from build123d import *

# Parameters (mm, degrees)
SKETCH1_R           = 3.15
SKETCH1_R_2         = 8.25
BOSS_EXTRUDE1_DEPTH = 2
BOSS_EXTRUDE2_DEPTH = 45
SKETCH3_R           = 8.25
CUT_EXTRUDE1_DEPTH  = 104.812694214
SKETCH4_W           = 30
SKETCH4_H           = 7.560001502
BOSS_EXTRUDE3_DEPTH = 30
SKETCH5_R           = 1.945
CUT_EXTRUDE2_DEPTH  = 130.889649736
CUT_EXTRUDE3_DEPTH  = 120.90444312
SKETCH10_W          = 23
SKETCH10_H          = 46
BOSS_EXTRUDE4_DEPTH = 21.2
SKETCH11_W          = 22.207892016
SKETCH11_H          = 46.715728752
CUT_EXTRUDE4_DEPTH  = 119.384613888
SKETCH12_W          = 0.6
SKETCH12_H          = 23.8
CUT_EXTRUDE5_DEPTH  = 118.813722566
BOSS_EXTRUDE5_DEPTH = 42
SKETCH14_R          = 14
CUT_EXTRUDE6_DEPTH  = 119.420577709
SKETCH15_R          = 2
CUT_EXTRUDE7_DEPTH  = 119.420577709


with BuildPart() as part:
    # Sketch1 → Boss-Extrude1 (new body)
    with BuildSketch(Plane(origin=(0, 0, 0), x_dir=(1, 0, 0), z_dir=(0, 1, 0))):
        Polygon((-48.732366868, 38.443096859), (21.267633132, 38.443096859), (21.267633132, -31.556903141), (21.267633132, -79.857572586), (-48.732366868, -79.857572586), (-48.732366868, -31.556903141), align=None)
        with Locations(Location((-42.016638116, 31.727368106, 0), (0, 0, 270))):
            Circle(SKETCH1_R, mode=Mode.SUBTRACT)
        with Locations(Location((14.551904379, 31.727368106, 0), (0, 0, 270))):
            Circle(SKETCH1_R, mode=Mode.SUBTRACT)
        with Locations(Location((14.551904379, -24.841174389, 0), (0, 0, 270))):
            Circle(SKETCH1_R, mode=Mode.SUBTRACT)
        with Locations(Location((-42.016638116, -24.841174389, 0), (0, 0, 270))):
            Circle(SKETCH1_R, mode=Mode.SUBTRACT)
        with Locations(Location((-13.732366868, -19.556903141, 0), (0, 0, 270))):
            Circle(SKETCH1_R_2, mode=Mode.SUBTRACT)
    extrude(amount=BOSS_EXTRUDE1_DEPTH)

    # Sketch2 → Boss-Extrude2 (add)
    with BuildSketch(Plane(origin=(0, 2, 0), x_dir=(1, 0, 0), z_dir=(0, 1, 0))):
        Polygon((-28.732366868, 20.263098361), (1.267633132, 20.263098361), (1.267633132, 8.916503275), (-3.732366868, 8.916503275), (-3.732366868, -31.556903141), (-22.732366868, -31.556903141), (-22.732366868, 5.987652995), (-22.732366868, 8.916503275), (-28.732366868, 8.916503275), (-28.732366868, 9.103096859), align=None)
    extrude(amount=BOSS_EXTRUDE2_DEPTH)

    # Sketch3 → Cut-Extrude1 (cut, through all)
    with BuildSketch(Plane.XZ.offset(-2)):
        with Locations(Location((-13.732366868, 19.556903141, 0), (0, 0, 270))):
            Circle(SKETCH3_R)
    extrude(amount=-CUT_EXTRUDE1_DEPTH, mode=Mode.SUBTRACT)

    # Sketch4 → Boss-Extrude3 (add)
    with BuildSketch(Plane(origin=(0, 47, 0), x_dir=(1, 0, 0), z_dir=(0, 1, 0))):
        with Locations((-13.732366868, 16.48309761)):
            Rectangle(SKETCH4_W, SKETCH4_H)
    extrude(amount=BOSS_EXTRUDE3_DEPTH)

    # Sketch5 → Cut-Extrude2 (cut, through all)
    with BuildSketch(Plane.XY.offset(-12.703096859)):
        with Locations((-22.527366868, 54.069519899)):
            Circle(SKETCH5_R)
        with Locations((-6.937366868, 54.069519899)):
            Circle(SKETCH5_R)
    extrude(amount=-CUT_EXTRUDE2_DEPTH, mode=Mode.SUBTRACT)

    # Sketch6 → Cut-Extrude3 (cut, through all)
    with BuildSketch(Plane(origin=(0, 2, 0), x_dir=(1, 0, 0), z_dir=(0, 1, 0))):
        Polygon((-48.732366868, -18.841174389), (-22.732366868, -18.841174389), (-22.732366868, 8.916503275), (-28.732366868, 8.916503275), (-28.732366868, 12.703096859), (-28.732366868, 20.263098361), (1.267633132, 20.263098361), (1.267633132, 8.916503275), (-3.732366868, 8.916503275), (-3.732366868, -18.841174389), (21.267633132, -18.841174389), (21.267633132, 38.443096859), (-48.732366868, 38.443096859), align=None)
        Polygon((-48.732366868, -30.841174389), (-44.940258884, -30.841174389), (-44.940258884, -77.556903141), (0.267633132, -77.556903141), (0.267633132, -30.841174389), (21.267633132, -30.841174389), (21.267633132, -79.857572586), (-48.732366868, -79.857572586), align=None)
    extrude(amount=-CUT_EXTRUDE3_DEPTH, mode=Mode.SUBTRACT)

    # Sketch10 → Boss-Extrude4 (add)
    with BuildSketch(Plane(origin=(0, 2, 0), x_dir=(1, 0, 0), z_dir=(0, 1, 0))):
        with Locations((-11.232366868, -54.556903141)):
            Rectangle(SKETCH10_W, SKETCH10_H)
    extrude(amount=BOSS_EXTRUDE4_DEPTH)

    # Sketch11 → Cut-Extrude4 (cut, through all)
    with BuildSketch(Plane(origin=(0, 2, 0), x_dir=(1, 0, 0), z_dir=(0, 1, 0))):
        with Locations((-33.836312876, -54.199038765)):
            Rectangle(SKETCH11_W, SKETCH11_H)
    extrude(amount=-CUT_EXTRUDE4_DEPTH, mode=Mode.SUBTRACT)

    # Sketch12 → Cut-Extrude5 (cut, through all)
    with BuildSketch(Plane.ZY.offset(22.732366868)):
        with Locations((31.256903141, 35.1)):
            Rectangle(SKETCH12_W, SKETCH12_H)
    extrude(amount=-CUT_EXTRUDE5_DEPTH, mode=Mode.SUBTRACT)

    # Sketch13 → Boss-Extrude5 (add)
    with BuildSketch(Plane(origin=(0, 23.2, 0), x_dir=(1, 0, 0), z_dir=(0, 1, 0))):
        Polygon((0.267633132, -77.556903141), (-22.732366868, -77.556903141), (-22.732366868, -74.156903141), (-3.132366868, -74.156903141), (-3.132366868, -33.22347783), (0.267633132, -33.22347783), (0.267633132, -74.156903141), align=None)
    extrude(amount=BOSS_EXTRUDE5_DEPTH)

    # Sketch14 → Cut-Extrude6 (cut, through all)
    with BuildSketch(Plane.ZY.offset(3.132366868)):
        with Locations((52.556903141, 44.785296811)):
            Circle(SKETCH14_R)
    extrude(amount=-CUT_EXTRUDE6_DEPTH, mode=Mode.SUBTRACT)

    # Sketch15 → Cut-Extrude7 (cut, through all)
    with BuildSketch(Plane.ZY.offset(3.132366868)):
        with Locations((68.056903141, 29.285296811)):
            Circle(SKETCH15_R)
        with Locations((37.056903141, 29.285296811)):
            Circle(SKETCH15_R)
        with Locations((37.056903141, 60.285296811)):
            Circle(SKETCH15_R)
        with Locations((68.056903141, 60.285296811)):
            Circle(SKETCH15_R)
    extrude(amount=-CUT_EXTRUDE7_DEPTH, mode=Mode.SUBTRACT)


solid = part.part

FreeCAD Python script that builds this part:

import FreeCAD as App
import Part
import Sketcher
from FreeCAD import Vector


def add_polygon(sketch, points):
    """Adds a closed chain of lines whose ends are joined by coincident constraints."""
    first, n = sketch.GeometryCount, len(points)
    for a, b in zip(points, points[1:] + points[:1]):
        sketch.addGeometry(Part.LineSegment(App.Vector(*a, 0), App.Vector(*b, 0)), False)
    for i in range(n):
        sketch.addConstraint(Sketcher.Constraint("Coincident", first + i, 2, first + (i + 1) % n, 1))

doc = App.newDocument("Part")
body = doc.addObject("PartDesign::Body", "Body")

# Sketch on XZ plane
sketch1 = body.newObject("Sketcher::SketchObject", "Sketch")
sketch1.AttachmentSupport = (doc.getObject("XZ_Plane"), [""])
sketch1.MapMode = "FlatFace"
add_polygon(sketch1, [(21.3, -38.4), (-48.7, -38.4), (-48.7, 79.9), (21.3, 79.9)])  # lines 0-3
sketch1.addGeometry(Part.Circle(Vector(14.6, 24.8, 0), Vector(0, 0, 1), 3.1), False)  # 4
sketch1.addGeometry(Part.Circle(Vector(-13.7, 19.6, 0), Vector(0, 0, 1), 8.2), False)  # 5
sketch1.addGeometry(Part.Circle(Vector(-42, 24.8, 0), Vector(0, 0, 1), 3.1), False)  # 6
sketch1.addGeometry(Part.Circle(Vector(14.6, -31.7, 0), Vector(0, 0, 1), 3.1), False)  # 7
sketch1.addGeometry(Part.Circle(Vector(-42, -31.7, 0), Vector(0, 0, 1), 3.1), False)  # 8
sketch1.addConstraint([
    Sketcher.Constraint("Horizontal", 0),
    Sketcher.Constraint("Vertical", 1),
    Sketcher.Constraint("Horizontal", 2),
    Sketcher.Constraint("Vertical", 3),
    Sketcher.Constraint("Equal", 4, 6),
    Sketcher.Constraint("Equal", 6, 7),
    Sketcher.Constraint("Equal", 7, 8),
    Sketcher.Constraint("Horizontal", 4, 3, 6, 3),
    Sketcher.Constraint("Horizontal", 7, 3, 8, 3),
    Sketcher.Constraint("Vertical", 4, 3, 7, 3),
    Sketcher.Constraint("Vertical", 6, 3, 8, 3),
    Sketcher.Constraint("Diameter", 4, 6.3),
    Sketcher.Constraint("Diameter", 5, 16.5),
    Sketcher.Constraint("DistanceX", 0, 2, 0, 1, 70.0),
    Sketcher.Constraint("DistanceX", 0, 2, 5, 3, 35.0),
    Sketcher.Constraint("DistanceY", 0, 2, 5, 3, 58.0),
    Sketcher.Constraint("DistanceY", 1, 1, 1, 2, 118.300669),
    Sketcher.Constraint("DistanceY", 6, 3, 1, 2, 55.016398),
    Sketcher.Constraint("DistanceX", 6, 3, -1, 1, 42.016638),
    Sketcher.Constraint("DistanceY", 7, 3, -1, 1, 31.727368),
    Sketcher.Constraint("DistanceX", 5, 3, 4, 3, 28.284271),
    Sketcher.Constraint("DistanceX", 6, 3, 5, 3, 28.284271),
    Sketcher.Constraint("DistanceY", 7, 3, 5, 3, 51.284271),
])
pad1 = body.newObject("PartDesign::Pad", "Pad")
pad1.Profile = sketch1
pad1.Length = 2
pad1.Reversed = True

# Sketch on XZ plane
sketch2 = body.newObject("Sketcher::SketchObject", "Sketch001")
sketch2.AttachmentSupport = (doc.getObject("XZ_Plane"), [""])
sketch2.MapMode = "FlatFace"
sketch2.AttachmentOffset = App.Placement(Vector(0, 0, -2), App.Rotation())
add_polygon(sketch2, [(1, -20), (-29, -20), (-29, -9), (-23, -9), (-23, 32), (-4, 32), (-4, -9), (1, -9)])  # lines 0-7
sketch2.addConstraint([
    Sketcher.Constraint("Horizontal", 0),
    Sketcher.Constraint("Vertical", 1),
    Sketcher.Constraint("Horizontal", 2),
    Sketcher.Constraint("Vertical", 3),
    Sketcher.Constraint("Horizontal", 4),
    Sketcher.Constraint("Vertical", 5),
    Sketcher.Constraint("Horizontal", 6),
    Sketcher.Constraint("Vertical", 7),
    Sketcher.Constraint("Horizontal", 2, 2, 5, 2),
    Sketcher.Constraint("DistanceX", 0, 2, 0, 1, 30.0),
    Sketcher.Constraint("DistanceX", 2, 1, 2, 2, 6.0),
    Sketcher.Constraint("DistanceX", 4, 1, 4, 2, 19.0),
    Sketcher.Constraint("DistanceY", 0, 2, 3, 2, 51.820002),
    Sketcher.Constraint("DistanceY", 0, 2, -1, 1, 20.263098),
    Sketcher.Constraint("DistanceY", 1, 1, 1, 2, 11.346595),
    Sketcher.Constraint("DistanceX", 0, 2, -1, 1, 28.732367),
])
pad2 = body.newObject("PartDesign::Pad", "Pad001")
pad2.Profile = sketch2
pad2.Length = 45
pad2.Reversed = True

# Sketch on XZ plane
sketch3 = body.newObject("Sketcher::SketchObject", "Sketch002")
sketch3.AttachmentSupport = (doc.getObject("XZ_Plane"), [""])
sketch3.MapMode = "FlatFace"
sketch3.AttachmentOffset = App.Placement(Vector(0, 0, -2), App.Rotation())
sketch3.addGeometry(Part.Circle(Vector(-14, 20, 0), Vector(0, 0, 1), 8), False)
sketch3.addConstraint([
    Sketcher.Constraint("Diameter", 0, 16.5),
    Sketcher.Constraint("DistanceX", 0, 3, -1, 1, 13.732367),
    Sketcher.Constraint("DistanceY", -1, 1, 0, 3, 19.556903),
])
pocket1 = body.newObject("PartDesign::Pocket", "Pocket")
pocket1.Profile = sketch3
pocket1.Type = "ThroughAll"

# Sketch on XZ plane
sketch4 = body.newObject("Sketcher::SketchObject", "Sketch003")
sketch4.AttachmentSupport = (doc.getObject("XZ_Plane"), [""])
sketch4.MapMode = "FlatFace"
sketch4.AttachmentOffset = App.Placement(Vector(0, 0, -47), App.Rotation())
add_polygon(sketch4, [(-29, -20), (-29, -13), (1, -13), (1, -20)])  # lines 0-3
sketch4.addConstraint([
    Sketcher.Constraint("Vertical", 0),
    Sketcher.Constraint("Horizontal", 1),
    Sketcher.Constraint("Vertical", 2),
    Sketcher.Constraint("Horizontal", 3),
    Sketcher.Constraint("DistanceX", 1, 1, 1, 2, 30.0),
    Sketcher.Constraint("DistanceY", 0, 1, 0, 2, 7.560002),
    Sketcher.Constraint("DistanceY", 2, 2, -1, 1, 20.263098),
    Sketcher.Constraint("DistanceX", 0, 2, -1, 1, 28.732367),
])
pad3 = body.newObject("PartDesign::Pad", "Pad002")
pad3.Profile = sketch4
pad3.Length = 30
pad3.Reversed = True

# Sketch on XY plane
sketch5 = body.newObject("Sketcher::SketchObject", "Sketch004")
sketch5.AttachmentSupport = (doc.getObject("XY_Plane"), [""])
sketch5.MapMode = "FlatFace"
sketch5.AttachmentOffset = App.Placement(Vector(0, 0, -12.703097), App.Rotation())
sketch5.addGeometry([
    Part.Circle(Vector(-22.5, 54.1, 0), Vector(0, 0, 1), 1.9),
    Part.Circle(Vector(-6.9, 54.1, 0), Vector(0, 0, 1), 1.9),
], False)
sketch5.addConstraint([
    Sketcher.Constraint("Equal", 0, 1),
    Sketcher.Constraint("Horizontal", 0, 3, 1, 3),
    Sketcher.Constraint("Diameter", 0, 3.89),
    Sketcher.Constraint("DistanceX", 0, 3, 1, 3, 15.59),
    Sketcher.Constraint("DistanceY", -1, 1, 0, 3, 54.06952),
    Sketcher.Constraint("DistanceX", 0, 3, -1, 1, 22.527367),
])
pocket2 = body.newObject("PartDesign::Pocket", "Pocket001")
pocket2.Profile = sketch5
pocket2.Type = "ThroughAll"

# Sketch on XZ plane
sketch6 = body.newObject("Sketcher::SketchObject", "Sketch005")
sketch6.AttachmentSupport = (doc.getObject("XZ_Plane"), [""])
sketch6.MapMode = "FlatFace"
sketch6.AttachmentOffset = App.Placement(Vector(0, 0, -2), App.Rotation())
add_polygon(sketch6, [(-48.7, 18.8), (-22.7, 18.8), (-22.7, -8.9), (-28.7, -8.9), (-28.7, -20.3), (1.3, -20.3), (1.3, -8.9), (-3.7, -8.9), (-3.7, 18.8), (21.3, 18.8), (21.3, -38.4), (-48.7, -38.4)])  # lines 0-11
add_polygon(sketch6, [(-44.9, 30.8), (-48.7, 30.8), (-48.7, 79.9), (21.3, 79.9), (21.3, 30.8), (0.3, 30.8), (0.3, 77.6), (-44.9, 77.6)])  # lines 12-19
sketch6.addConstraint([
    Sketcher.Constraint("Horizontal", 0),
    Sketcher.Constraint("Vertical", 1),
    Sketcher.Constraint("Horizontal", 2),
    Sketcher.Constraint("Vertical", 3),
    Sketcher.Constraint("Horizontal", 4),
    Sketcher.Constraint("Vertical", 5),
    Sketcher.Constraint("Horizontal", 6),
    Sketcher.Constraint("Vertical", 7),
    Sketcher.Constraint("Horizontal", 8),
    Sketcher.Constraint("Vertical", 9),
    Sketcher.Constraint("Horizontal", 10),
    Sketcher.Constraint("Vertical", 11),
    Sketcher.Constraint("Horizontal", 12),
    Sketcher.Constraint("Vertical", 13),
    Sketcher.Constraint("Horizontal", 14),
    Sketcher.Constraint("Vertical", 15),
    Sketcher.Constraint("Horizontal", 16),
    Sketcher.Constraint("Vertical", 17),
    Sketcher.Constraint("Horizontal", 18),
    Sketcher.Constraint("Vertical", 19),
    Sketcher.Constraint("Horizontal", 2, 2, 5, 2),
    Sketcher.Constraint("Horizontal", 0, 2, 7, 2),
    Sketcher.Constraint("Horizontal", 12, 2, 15, 2),
    Sketcher.Constraint("Vertical", 11, 2, 12, 2),
    Sketcher.Constraint("Vertical", 9, 2, 14, 2),
    Sketcher.Constraint("DistanceX", 0, 1, 0, 2, 26.0),
    Sketcher.Constraint("DistanceX", 2, 2, 2, 1, 6.0),
    Sketcher.Constraint("DistanceX", 4, 1, 4, 2, 30.0),
    Sketcher.Constraint("DistanceX", 6, 2, 6, 1, 5.0),
    Sketcher.Constraint("DistanceX", 8, 1, 8, 2, 25.0),
    Sketcher.Constraint("DistanceX", 16, 2, 16, 1, 21.0),
    Sketcher.Constraint("DistanceY", 11, 2, 12, 2, 12.0),
    Sketcher.Constraint("DistanceY", 9, 2, 4, 2, 18.179998),
    Sketcher.Constraint("DistanceY", 13, 1, 13, 2, 49.016398),
    Sketcher.Constraint("DistanceY", 9, 2, 9, 1, 57.284271),
    Sketcher.Constraint("DistanceY", 17, 1, 17, 2, 46.715729),
    Sketcher.Constraint("DistanceY", 3, 2, -1, 1, 20.263098),
    Sketcher.Constraint("DistanceX", 12, 2, 12, 1, 3.792108),
    Sketcher.Constraint("DistanceY", 1, 2, 1, 1, 27.757678),
    Sketcher.Constraint("DistanceX", 18, 2, -1, 1, 44.940259),
])
pocket3 = body.newObject("PartDesign::Pocket", "Pocket002")
pocket3.Profile = sketch6
pocket3.Type = "ThroughAll"
pocket3.Reversed = True

# Sketch on XZ plane
sketch7 = body.newObject("Sketcher::SketchObject", "Sketch006")
sketch7.AttachmentSupport = (doc.getObject("XZ_Plane"), [""])
sketch7.MapMode = "FlatFace"
sketch7.AttachmentOffset = App.Placement(Vector(0, 0, -2), App.Rotation())
add_polygon(sketch7, [(-23, 32), (-23, 78), (0, 78), (0, 32)])  # lines 0-3
sketch7.addConstraint([
    Sketcher.Constraint("Vertical", 0),
    Sketcher.Constraint("Horizontal", 1),
    Sketcher.Constraint("Vertical", 2),
    Sketcher.Constraint("Horizontal", 3),
    Sketcher.Constraint("DistanceX", 1, 1, 1, 2, 23.0),
    Sketcher.Constraint("DistanceY", 0, 1, 0, 2, 46.0),
    Sketcher.Constraint("DistanceX", 0, 2, -1, 1, 22.732367),
    Sketcher.Constraint("DistanceY", -1, 1, 0, 2, 77.556903),
])
pad4 = body.newObject("PartDesign::Pad", "Pad003")
pad4.Profile = sketch7
pad4.Length = 21.2
pad4.Reversed = True

# Sketch on XZ plane
sketch8 = body.newObject("Sketcher::SketchObject", "Sketch007")
sketch8.AttachmentSupport = (doc.getObject("XZ_Plane"), [""])
sketch8.MapMode = "FlatFace"
sketch8.AttachmentOffset = App.Placement(Vector(0, 0, -2), App.Rotation())
add_polygon(sketch8, [(-45, 31), (-45, 78), (-23, 78), (-23, 31)])  # lines 0-3
sketch8.addConstraint([
    Sketcher.Constraint("Vertical", 0),
    Sketcher.Constraint("Horizontal", 1),
    Sketcher.Constraint("Vertical", 2),
    Sketcher.Constraint("Horizontal", 3),
    Sketcher.Constraint("DistanceY", 0, 1, 0, 2, 46.715729),
    Sketcher.Constraint("DistanceX", 1, 1, 1, 2, 22.207892),
    Sketcher.Constraint("DistanceX", 0, 2, -1, 1, 44.940259),
    Sketcher.Constraint("DistanceY", -1, 1, 0, 2, 77.556903),
])
pocket4 = body.newObject("PartDesign::Pocket", "Pocket003")
pocket4.Profile = sketch8
pocket4.Type = "ThroughAll"
pocket4.Reversed = True

# Sketch on YZ plane
sketch9 = body.newObject("Sketcher::SketchObject", "Sketch008")
sketch9.AttachmentSupport = (doc.getObject("YZ_Plane"), [""])
sketch9.MapMode = "FlatFace"
sketch9.AttachmentOffset = App.Placement(Vector(0, 0, -22.732367), App.Rotation())
add_polygon(sketch9, [(47, 31), (23.2, 31), (23.2, 31.6), (47, 31.6)])  # lines 0-3
sketch9.addConstraint([
    Sketcher.Constraint("Horizontal", 0),
    Sketcher.Constraint("Vertical", 1),
    Sketcher.Constraint("Horizontal", 2),
    Sketcher.Constraint("Vertical", 3),
    Sketcher.Constraint("DistanceX", 0, 2, 0, 1, 23.8),
    Sketcher.Constraint("DistanceY", 1, 1, 1, 2, 0.6),
    Sketcher.Constraint("DistanceX", -1, 1, 2, 2, 47.0),
    Sketcher.Constraint("DistanceY", -1, 1, 0, 2, 30.956903),
])
pocket5 = body.newObject("PartDesign::Pocket", "Pocket004")
pocket5.Profile = sketch9
pocket5.Type = "ThroughAll"
pocket5.Reversed = True

# Sketch on XZ plane
sketch10 = body.newObject("Sketcher::SketchObject", "Sketch009")
sketch10.AttachmentSupport = (doc.getObject("XZ_Plane"), [""])
sketch10.MapMode = "FlatFace"
sketch10.AttachmentOffset = App.Placement(Vector(0, 0, -23.2), App.Rotation())
add_polygon(sketch10, [(-22.7, 77.6), (0.3, 77.6), (0.3, 33.2), (-3.1, 33.2), (-3.1, 74.2), (-22.7, 74.2)])  # lines 0-5
sketch10.addConstraint([
    Sketcher.Constraint("Horizontal", 0),
    Sketcher.Constraint("Vertical", 1),
    Sketcher.Constraint("Horizontal", 2),
    Sketcher.Constraint("Vertical", 3),
    Sketcher.Constraint("Horizontal", 4),
    Sketcher.Constraint("Vertical", 5),
    Sketcher.Constraint("Equal", 2, 5),
    Sketcher.Constraint("DistanceX", 0, 1, 0, 2, 23.0),
    Sketcher.Constraint("DistanceX", 2, 2, 2, 1, 3.4),
    Sketcher.Constraint("DistanceY", 1, 2, 1, 1, 44.333425),
    Sketcher.Constraint("DistanceX", -1, 1, 0, 2, 0.267633),
    Sketcher.Constraint("DistanceY", -1, 1, 0, 2, 77.556903),
])
pad5 = body.newObject("PartDesign::Pad", "Pad004")
pad5.Profile = sketch10
pad5.Length = 42
pad5.Reversed = True

# Sketch on YZ plane
sketch11 = body.newObject("Sketcher::SketchObject", "Sketch010")
sketch11.AttachmentSupport = (doc.getObject("YZ_Plane"), [""])
sketch11.MapMode = "FlatFace"
sketch11.AttachmentOffset = App.Placement(Vector(0, 0, -3.132367), App.Rotation())
sketch11.addGeometry(Part.Circle(Vector(45, 53, 0), Vector(0, 0, 1), 14), False)
sketch11.addConstraint([
    Sketcher.Constraint("Diameter", 0, 28.0),
    Sketcher.Constraint("DistanceX", -1, 1, 0, 3, 44.785297),
    Sketcher.Constraint("DistanceY", -1, 1, 0, 3, 52.556903),
])
pocket6 = body.newObject("PartDesign::Pocket", "Pocket005")
pocket6.Profile = sketch11
pocket6.Type = "ThroughAll"
pocket6.Reversed = True

# Sketch on YZ plane
sketch12 = body.newObject("Sketcher::SketchObject", "Sketch011")
sketch12.AttachmentSupport = (doc.getObject("YZ_Plane"), [""])
sketch12.MapMode = "FlatFace"
sketch12.AttachmentOffset = App.Placement(Vector(0, 0, -3.132367), App.Rotation())
sketch12.addGeometry([
    Part.Circle(Vector(29.3, 68.1, 0), Vector(0, 0, 1), 2),
    Part.Circle(Vector(29.3, 37.1, 0), Vector(0, 0, 1), 2),
    Part.Circle(Vector(60.3, 37.1, 0), Vector(0, 0, 1), 2),
    Part.Circle(Vector(60.3, 68.1, 0), Vector(0, 0, 1), 2),
], False)
sketch12.addConstraint([
    Sketcher.Constraint("Equal", 0, 1),
    Sketcher.Constraint("Equal", 1, 2),
    Sketcher.Constraint("Equal", 2, 3),
    Sketcher.Constraint("Horizontal", 1, 3, 2, 3),
    Sketcher.Constraint("Horizontal", 0, 3, 3, 3),
    Sketcher.Constraint("Vertical", 0, 3, 1, 3),
    Sketcher.Constraint("Vertical", 2, 3, 3, 3),
    Sketcher.Constraint("Diameter", 0, 4.0),
    Sketcher.Constraint("DistanceY", 1, 3, 0, 3, 31.0),
    Sketcher.Constraint("DistanceX", 1, 3, 2, 3, 31.0),
    Sketcher.Constraint("DistanceX", -1, 1, 0, 3, 29.285297),
    Sketcher.Constraint("DistanceY", -1, 1, 0, 3, 68.056903),
])
pocket7 = body.newObject("PartDesign::Pocket", "Pocket006")
pocket7.Profile = sketch12
pocket7.Type = "ThroughAll"
pocket7.Reversed = True

doc.recompute()
